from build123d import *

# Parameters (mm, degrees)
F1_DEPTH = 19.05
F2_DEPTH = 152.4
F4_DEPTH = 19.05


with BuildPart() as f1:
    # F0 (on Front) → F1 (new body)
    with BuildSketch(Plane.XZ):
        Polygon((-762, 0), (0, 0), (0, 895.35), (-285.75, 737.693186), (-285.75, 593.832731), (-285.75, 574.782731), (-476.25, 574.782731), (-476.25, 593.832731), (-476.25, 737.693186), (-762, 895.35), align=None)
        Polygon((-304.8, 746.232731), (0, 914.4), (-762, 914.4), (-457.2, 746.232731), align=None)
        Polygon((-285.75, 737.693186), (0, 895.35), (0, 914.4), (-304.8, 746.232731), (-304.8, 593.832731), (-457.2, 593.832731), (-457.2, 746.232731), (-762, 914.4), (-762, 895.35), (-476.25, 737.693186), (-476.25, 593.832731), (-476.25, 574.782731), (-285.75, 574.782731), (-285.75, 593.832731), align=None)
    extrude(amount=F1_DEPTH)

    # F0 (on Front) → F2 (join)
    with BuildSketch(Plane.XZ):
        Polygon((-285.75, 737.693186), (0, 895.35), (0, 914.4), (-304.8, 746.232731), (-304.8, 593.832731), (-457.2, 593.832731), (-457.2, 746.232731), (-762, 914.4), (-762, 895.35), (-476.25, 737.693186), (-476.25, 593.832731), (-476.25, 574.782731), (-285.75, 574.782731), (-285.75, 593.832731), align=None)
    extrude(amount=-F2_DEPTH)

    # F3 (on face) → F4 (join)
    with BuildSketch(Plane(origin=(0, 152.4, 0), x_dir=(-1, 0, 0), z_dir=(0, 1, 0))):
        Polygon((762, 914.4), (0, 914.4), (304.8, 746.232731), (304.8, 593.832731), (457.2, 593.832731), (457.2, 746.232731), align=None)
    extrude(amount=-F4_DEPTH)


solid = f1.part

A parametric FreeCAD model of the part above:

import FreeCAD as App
import Part
import Sketcher
Q = App.Units.Quantity


def add_polygon(sketch, points):
    """Adds a closed chain of lines whose ends are joined by coincident constraints."""
    first, n = sketch.GeometryCount, len(points)
    for a, b in zip(points, points[1:] + points[:1]):
        sketch.addGeometry(Part.LineSegment(App.Vector(*a, 0), App.Vector(*b, 0)), False)
    for i in range(n):
        sketch.addConstraint(Sketcher.Constraint("Coincident", first + i, 2, first + (i + 1) % n, 1))

doc = App.newDocument("Part")
body = doc.addObject("PartDesign::Body", "Body")

# Sketch on XZ plane
sketch1 = body.newObject("Sketcher::SketchObject", "Sketch")
sketch1.AttachmentSupport = (doc.getObject("XZ_Plane"), [""])
sketch1.MapMode = "FlatFace"
add_polygon(sketch1, [(-762, 0), (0, 0), (0, 914), (-762, 914)])  # lines 0-3
add_polygon(sketch1, [(-305, 746), (-305, 594), (-457, 594), (-457, 746)])  # lines 4-7
sketch1.addConstraint(Sketcher.Constraint("Horizontal", 0))
sketch1.addConstraint(Sketcher.Constraint("Vertical", 1))
sketch1.addConstraint(Sketcher.Constraint("Horizontal", 2))
sketch1.addConstraint(Sketcher.Constraint("Vertical", 3))
sketch1.addConstraint(Sketcher.Constraint("Vertical", 4))
sketch1.addConstraint(Sketcher.Constraint("Horizontal", 5))
sketch1.addConstraint(Sketcher.Constraint("Vertical", 6))
sketch1.addConstraint(Sketcher.Constraint("Horizontal", 7))
sketch1.addConstraint(Sketcher.Constraint("Coincident", 0, 2, -1, 1))
sketch1.addConstraint(Sketcher.Constraint("Equal", 7, 4))
sketch1.addConstraint(Sketcher.Constraint("DistanceX", 0, 1, 0, 2, Q("30 in")))
sketch1.addConstraint(Sketcher.Constraint("DistanceX", 5, 2, 5, 1, Q("6 in")))
sketch1.addConstraint(Sketcher.Constraint("DistanceY", 1, 1, 1, 2, Q("36 in")))
sketch1.addConstraint(Sketcher.Constraint("DistanceX", 4, 2, -1, 1, Q("12 in")))
sketch1.addConstraint(Sketcher.Constraint("DistanceY", -1, 1, 4, 2, 593.832731))
pad1 = body.newObject("PartDesign::Pad", "Pad")
pad1.Profile = sketch1
pad1.Length = Q("0.75 in")

# Sketch on XZ plane
sketch2 = body.newObject("Sketcher::SketchObject", "Sketch001")
sketch2.AttachmentSupport = (doc.getObject("XZ_Plane"), [""])
sketch2.MapMode = "FlatFace"
add_polygon(sketch2, [(-286, 738), (0, 895), (0, 914), (-305, 746), (-305, 594), (-457, 594), (-457, 746), (-762, 914), (-762, 895), (-476, 738), (-476, 575), (-286, 575)])  # lines 0-11
sketch2.addConstraint(Sketcher.Constraint("Vertical", 1))
sketch2.addConstraint(Sketcher.Constraint("Vertical", 3))
sketch2.addConstraint(Sketcher.Constraint("Horizontal", 4))
sketch2.addConstraint(Sketcher.Constraint("Vertical", 5))
sketch2.addConstraint(Sketcher.Constraint("Vertical", 7))
sketch2.addConstraint(Sketcher.Constraint("Vertical", 9))
sketch2.addConstraint(Sketcher.Constraint("Horizontal", 10))
sketch2.addConstraint(Sketcher.Constraint("Vertical", 11))
sketch2.addConstraint(Sketcher.Constraint("PointOnObject", 0, 2, -2))
sketch2.addConstraint(Sketcher.Constraint("Parallel", 0, 2))
sketch2.addConstraint(Sketcher.Constraint("Parallel", 6, 8))
sketch2.addConstraint(Sketcher.Constraint("Horizontal", 2, 2, 5, 2))
sketch2.addConstraint(Sketcher.Constraint("Horizontal", 1, 2, 6, 2))
sketch2.addConstraint(Sketcher.Constraint("Horizontal", 0, 2, 7, 2))
sketch2.addConstraint(Sketcher.Constraint("Horizontal", 8, 2, 11, 2))
sketch2.addConstraint(Sketcher.Constraint("Equal", 4, 3))
sketch2.addConstraint(Sketcher.Constraint("Equal", 2, 6))
sketch2.addConstraint(Sketcher.Constraint("DistanceX", 4, 2, 4, 1, Q("6 in")))
sketch2.addConstraint(Sketcher.Constraint("DistanceX", 10, 1, 10, 2, Q("7.5 in")))
sketch2.addConstraint(Sketcher.Constraint("DistanceY", -1, 1, 1, 2, Q("36 in")))
sketch2.addConstraint(Sketcher.Constraint("DistanceX", 2, 2, -1, 1, Q("12 in")))
sketch2.addConstraint(Sketcher.Constraint("DistanceY", 1, 1, 1, 2, Q("0.75 in")))
sketch2.addConstraint(Sketcher.Constraint("DistanceY", 9, 2, 4, 2, Q("0.75 in")))
sketch2.addConstraint(Sketcher.Constraint("Distance", 0, 326.356758))
pad2 = body.newObject("PartDesign::Pad", "Pad001")
pad2.Profile = sketch2
pad2.Length = Q("6 in")
pad2.Reversed = True

# Sketch on XZ plane
sketch3 = body.newObject("Sketcher::SketchObject", "Sketch002")
sketch3.AttachmentSupport = (doc.getObject("XZ_Plane"), [""])
sketch3.MapMode = "FlatFace"
sketch3.AttachmentOffset = App.Placement(App.Vector(0, 0, -6 * 25.4), App.Rotation())
add_polygon(sketch3, [(-762, 914), (0, 914), (-305, 746), (-305, 594), (-457, 594), (-457, 746)])  # lines 0-5
sketch3.addConstraint(Sketcher.Constraint("Horizontal", 0))
sketch3.addConstraint(Sketcher.Constraint("Vertical", 2))
sketch3.addConstraint(Sketcher.Constraint("Horizontal", 3))
sketch3.addConstraint(Sketcher.Constraint("Vertical", 4))
sketch3.addConstraint(Sketcher.Constraint("PointOnObject", 0, 2, -2))
sketch3.addConstraint(Sketcher.Constraint("Horizontal", 1, 2, 4, 2))
sketch3.addConstraint(Sketcher.Constraint("Equal", 3, 2))
sketch3.addConstraint(Sketcher.Constraint("Equal", 1, 5))
sketch3.addConstraint(Sketcher.Constraint("DistanceX", 0, 1, 0, 2, Q("30 in")))
sketch3.addConstraint(Sketcher.Constraint("DistanceX", 3, 2, 3, 1, Q("6 in")))
sketch3.addConstraint(Sketcher.Constraint("DistanceY", -1, 1, 0, 2, Q("36 in")))
sketch3.addConstraint(Sketcher.Constraint("DistanceY", -1, 1, 1, 2, 746.232731))
pad3 = body.newObject("PartDesign::Pad", "Pad002")
pad3.Profile = sketch3
pad3.Length = Q("0.75 in")

doc.recompute()
